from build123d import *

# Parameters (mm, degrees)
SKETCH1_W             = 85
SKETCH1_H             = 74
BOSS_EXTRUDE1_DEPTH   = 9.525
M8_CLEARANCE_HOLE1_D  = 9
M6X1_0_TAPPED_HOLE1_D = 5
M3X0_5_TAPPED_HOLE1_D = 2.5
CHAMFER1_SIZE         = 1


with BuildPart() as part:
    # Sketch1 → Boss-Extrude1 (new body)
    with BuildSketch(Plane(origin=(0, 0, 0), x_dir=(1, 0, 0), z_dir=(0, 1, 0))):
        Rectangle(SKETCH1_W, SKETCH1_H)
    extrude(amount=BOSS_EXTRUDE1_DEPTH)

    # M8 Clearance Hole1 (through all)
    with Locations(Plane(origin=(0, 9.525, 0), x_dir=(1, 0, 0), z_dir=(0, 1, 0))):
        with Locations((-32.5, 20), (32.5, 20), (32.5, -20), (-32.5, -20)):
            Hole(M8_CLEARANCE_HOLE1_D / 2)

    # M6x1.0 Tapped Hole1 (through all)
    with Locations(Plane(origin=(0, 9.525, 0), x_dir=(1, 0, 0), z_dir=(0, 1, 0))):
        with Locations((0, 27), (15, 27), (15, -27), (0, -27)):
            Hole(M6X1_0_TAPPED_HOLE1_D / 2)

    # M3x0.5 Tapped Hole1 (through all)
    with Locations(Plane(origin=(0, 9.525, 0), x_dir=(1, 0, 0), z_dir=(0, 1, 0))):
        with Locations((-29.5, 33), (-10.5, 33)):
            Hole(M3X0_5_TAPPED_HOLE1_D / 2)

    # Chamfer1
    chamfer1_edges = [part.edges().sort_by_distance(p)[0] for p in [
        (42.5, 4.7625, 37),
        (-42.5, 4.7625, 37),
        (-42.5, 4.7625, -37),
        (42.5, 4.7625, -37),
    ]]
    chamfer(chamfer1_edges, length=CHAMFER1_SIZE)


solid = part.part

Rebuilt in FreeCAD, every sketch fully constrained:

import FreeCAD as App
import Part
import Sketcher


def edges_at(feature, points):
    """Names of the edges that pass closest to the given points."""
    edges = feature.Shape.Edges
    near = lambda p: min(range(len(edges)), key=lambda i: edges[i].distToShape(Part.Vertex(*p))[0])
    return sorted({f"Edge{near(p) + 1}" for p in points})

doc = App.newDocument("Part")
body = doc.addObject("PartDesign::Body", "Body")

# Sketch on XZ plane
sketch1 = doc.addObject("Sketcher::SketchObject", "Sketch")
body.addObject(sketch1)
sketch1.AttachmentSupport = (doc.XZ_Plane, [""])
sketch1.MapMode = "FlatFace"
sketch1.addGeometry(Part.LineSegment(App.Vector(-42, -37, 0), App.Vector(-42, 37, 0)), False)
sketch1.addGeometry(Part.LineSegment(App.Vector(-42, 37, 0), App.Vector(42, 37, 0)), False)
sketch1.addGeometry(Part.LineSegment(App.Vector(42, 37, 0), App.Vector(42, -37, 0)), False)
sketch1.addGeometry(Part.LineSegment(App.Vector(42, -37, 0), App.Vector(-42, -37, 0)), False)
sketch1.addConstraint(Sketcher.Constraint("Coincident", 0, 2, 1, 1))
sketch1.addConstraint(Sketcher.Constraint("Coincident", 1, 2, 2, 1))
sketch1.addConstraint(Sketcher.Constraint("Coincident", 2, 2, 3, 1))
sketch1.addConstraint(Sketcher.Constraint("Coincident", 3, 2, 0, 1))
sketch1.addConstraint(Sketcher.Constraint("Vertical", 0))
sketch1.addConstraint(Sketcher.Constraint("Horizontal", 1))
sketch1.addConstraint(Sketcher.Constraint("Vertical", 2))
sketch1.addConstraint(Sketcher.Constraint("Horizontal", 3))
sketch1.addConstraint(Sketcher.Constraint("Symmetric", 0, 2, 2, 2, -1, 1))
sketch1.addConstraint(Sketcher.Constraint("DistanceX", 1, 1, 1, 2, 85.0))
sketch1.addConstraint(Sketcher.Constraint("DistanceY", 0, 1, 0, 2, 74.0))
pad1 = doc.addObject("PartDesign::Pad", "Pad")
body.addObject(pad1)
pad1.Profile = sketch1
pad1.Length = 9.525
pad1.Reversed = True

# Sketch on XZ plane
sketch2 = doc.addObject("Sketcher::SketchObject", "Sketch001")
body.addObject(sketch2)
sketch2.AttachmentSupport = (doc.XZ_Plane, [""])
sketch2.MapMode = "FlatFace"
sketch2.AttachmentOffset = App.Placement(App.Vector(0, 0, -9.525), App.Rotation())
sketch2.addGeometry(Part.Circle(App.Vector(-32.5, -20, 0), App.Vector(0, 0, 1), 4.5), False)
sketch2.addGeometry(Part.Circle(App.Vector(32.5, -20, 0), App.Vector(0, 0, 1), 4.5), False)
sketch2.addGeometry(Part.Circle(App.Vector(32.5, 20, 0), App.Vector(0, 0, 1), 4.5), False)
sketch2.addGeometry(Part.Circle(App.Vector(-32.5, 20, 0), App.Vector(0, 0, 1), 4.5), False)
sketch2.addConstraint(Sketcher.Constraint("Equal", 0, 1))
sketch2.addConstraint(Sketcher.Constraint("Equal", 1, 2))
sketch2.addConstraint(Sketcher.Constraint("Equal", 2, 3))
sketch2.addConstraint(Sketcher.Constraint("Symmetric", 0, 3, 2, 3, -1, 1))
sketch2.addConstraint(Sketcher.Constraint("Symmetric", 1, 3, 3, 3, -1, 1))
sketch2.addConstraint(Sketcher.Constraint("Symmetric", 0, 3, 1, 3, -2))
sketch2.addConstraint(Sketcher.Constraint("Diameter", 0, 9.0))
sketch2.addConstraint(Sketcher.Constraint("DistanceY", 0, 3, -1, 1, 20.0))
sketch2.addConstraint(Sketcher.Constraint("DistanceX", 0, 3, 1, 3, 65.0))
doc.recompute()
hole = doc.addObject("PartDesign::Hole", "Hole")
body.addObject(hole)
hole.Profile = sketch2
hole.ThreadType = "None"
hole.Diameter = 9
hole.DepthType = "ThroughAll"
hole.Reversed = True

# Sketch on XZ plane
sketch3 = doc.addObject("Sketcher::SketchObject", "Sketch002")
body.addObject(sketch3)
sketch3.AttachmentSupport = (doc.XZ_Plane, [""])
sketch3.MapMode = "FlatFace"
sketch3.AttachmentOffset = App.Placement(App.Vector(0, 0, -9.525), App.Rotation())
sketch3.addGeometry(Part.Circle(App.Vector(0, -27, 0), App.Vector(0, 0, 1), 2.5), False)
sketch3.addGeometry(Part.Circle(App.Vector(15, -27, 0), App.Vector(0, 0, 1), 2.5), False)
sketch3.addGeometry(Part.Circle(App.Vector(15, 27, 0), App.Vector(0, 0, 1), 2.5), False)
sketch3.addGeometry(Part.Circle(App.Vector(0, 27, 0), App.Vector(0, 0, 1), 2.5), False)
sketch3.addConstraint(Sketcher.Constraint("Equal", 0, 1))
sketch3.addConstraint(Sketcher.Constraint("Equal", 1, 2))
sketch3.addConstraint(Sketcher.Constraint("Equal", 2, 3))
sketch3.addConstraint(Sketcher.Constraint("Symmetric", 0, 3, 3, 3, -1, 1))
sketch3.addConstraint(Sketcher.Constraint("Symmetric", 1, 3, 2, 3, -1))
sketch3.addConstraint(Sketcher.Constraint("PointOnObject", 0, 3, -2))
sketch3.addConstraint(Sketcher.Constraint("Horizontal", 0, 3, 1, 3))
sketch3.addConstraint(Sketcher.Constraint("Diameter", 0, 5.0))
sketch3.addConstraint(Sketcher.Constraint("DistanceY", 0, 3, -1, 1, 27.0))
sketch3.addConstraint(Sketcher.Constraint("DistanceX", -1, 1, 1, 3, 15.0))
doc.recompute()
hole2 = doc.addObject("PartDesign::Hole", "Hole001")
body.addObject(hole2)
hole2.Profile = sketch3
hole2.ThreadType = "None"
hole2.Diameter = 5
hole2.DepthType = "ThroughAll"
hole2.Reversed = True

# Sketch on XZ plane
sketch4 = doc.addObject("Sketcher::SketchObject", "Sketch003")
body.addObject(sketch4)
sketch4.AttachmentSupport = (doc.XZ_Plane, [""])
sketch4.MapMode = "FlatFace"
sketch4.AttachmentOffset = App.Placement(App.Vector(0, 0, -9.525), App.Rotation())
sketch4.addGeometry(Part.Circle(App.Vector(-29.5, -33, 0), App.Vector(0, 0, 1), 1.2), False)
sketch4.addGeometry(Part.Circle(App.Vector(-10.5, -33, 0), App.Vector(0, 0, 1), 1.2), False)
sketch4.addConstraint(Sketcher.Constraint("Equal", 0, 1))
sketch4.addConstraint(Sketcher.Constraint("Horizontal", 0, 3, 1, 3))
sketch4.addConstraint(Sketcher.Constraint("Diameter", 0, 2.5))
sketch4.addConstraint(Sketcher.Constraint("DistanceY", 0, 3, -1, 1, 33.0))
sketch4.addConstraint(Sketcher.Constraint("DistanceX", 0, 3, 1, 3, 19.0))
sketch4.addConstraint(Sketcher.Constraint("DistanceX", 0, 3, -1, 1, 29.5))
doc.recompute()
hole3 = doc.addObject("PartDesign::Hole", "Hole002")
body.addObject(hole3)
hole3.Profile = sketch4
hole3.ThreadType = "None"
hole3.Diameter = 2.5
hole3.DepthType = "ThroughAll"
hole3.Reversed = True
doc.recompute()

chamfer = doc.addObject("PartDesign::Chamfer", "Chamfer")
body.addObject(chamfer)
chamfer.Base = (hole3, edges_at(hole3, [
    (42.5, 4.763, 37),
    (-42.5, 4.763, 37),
    (-42.5, 4.763, -37),
    (42.5, 4.763, -37),
]))
chamfer.Size = 1

doc.recompute()
